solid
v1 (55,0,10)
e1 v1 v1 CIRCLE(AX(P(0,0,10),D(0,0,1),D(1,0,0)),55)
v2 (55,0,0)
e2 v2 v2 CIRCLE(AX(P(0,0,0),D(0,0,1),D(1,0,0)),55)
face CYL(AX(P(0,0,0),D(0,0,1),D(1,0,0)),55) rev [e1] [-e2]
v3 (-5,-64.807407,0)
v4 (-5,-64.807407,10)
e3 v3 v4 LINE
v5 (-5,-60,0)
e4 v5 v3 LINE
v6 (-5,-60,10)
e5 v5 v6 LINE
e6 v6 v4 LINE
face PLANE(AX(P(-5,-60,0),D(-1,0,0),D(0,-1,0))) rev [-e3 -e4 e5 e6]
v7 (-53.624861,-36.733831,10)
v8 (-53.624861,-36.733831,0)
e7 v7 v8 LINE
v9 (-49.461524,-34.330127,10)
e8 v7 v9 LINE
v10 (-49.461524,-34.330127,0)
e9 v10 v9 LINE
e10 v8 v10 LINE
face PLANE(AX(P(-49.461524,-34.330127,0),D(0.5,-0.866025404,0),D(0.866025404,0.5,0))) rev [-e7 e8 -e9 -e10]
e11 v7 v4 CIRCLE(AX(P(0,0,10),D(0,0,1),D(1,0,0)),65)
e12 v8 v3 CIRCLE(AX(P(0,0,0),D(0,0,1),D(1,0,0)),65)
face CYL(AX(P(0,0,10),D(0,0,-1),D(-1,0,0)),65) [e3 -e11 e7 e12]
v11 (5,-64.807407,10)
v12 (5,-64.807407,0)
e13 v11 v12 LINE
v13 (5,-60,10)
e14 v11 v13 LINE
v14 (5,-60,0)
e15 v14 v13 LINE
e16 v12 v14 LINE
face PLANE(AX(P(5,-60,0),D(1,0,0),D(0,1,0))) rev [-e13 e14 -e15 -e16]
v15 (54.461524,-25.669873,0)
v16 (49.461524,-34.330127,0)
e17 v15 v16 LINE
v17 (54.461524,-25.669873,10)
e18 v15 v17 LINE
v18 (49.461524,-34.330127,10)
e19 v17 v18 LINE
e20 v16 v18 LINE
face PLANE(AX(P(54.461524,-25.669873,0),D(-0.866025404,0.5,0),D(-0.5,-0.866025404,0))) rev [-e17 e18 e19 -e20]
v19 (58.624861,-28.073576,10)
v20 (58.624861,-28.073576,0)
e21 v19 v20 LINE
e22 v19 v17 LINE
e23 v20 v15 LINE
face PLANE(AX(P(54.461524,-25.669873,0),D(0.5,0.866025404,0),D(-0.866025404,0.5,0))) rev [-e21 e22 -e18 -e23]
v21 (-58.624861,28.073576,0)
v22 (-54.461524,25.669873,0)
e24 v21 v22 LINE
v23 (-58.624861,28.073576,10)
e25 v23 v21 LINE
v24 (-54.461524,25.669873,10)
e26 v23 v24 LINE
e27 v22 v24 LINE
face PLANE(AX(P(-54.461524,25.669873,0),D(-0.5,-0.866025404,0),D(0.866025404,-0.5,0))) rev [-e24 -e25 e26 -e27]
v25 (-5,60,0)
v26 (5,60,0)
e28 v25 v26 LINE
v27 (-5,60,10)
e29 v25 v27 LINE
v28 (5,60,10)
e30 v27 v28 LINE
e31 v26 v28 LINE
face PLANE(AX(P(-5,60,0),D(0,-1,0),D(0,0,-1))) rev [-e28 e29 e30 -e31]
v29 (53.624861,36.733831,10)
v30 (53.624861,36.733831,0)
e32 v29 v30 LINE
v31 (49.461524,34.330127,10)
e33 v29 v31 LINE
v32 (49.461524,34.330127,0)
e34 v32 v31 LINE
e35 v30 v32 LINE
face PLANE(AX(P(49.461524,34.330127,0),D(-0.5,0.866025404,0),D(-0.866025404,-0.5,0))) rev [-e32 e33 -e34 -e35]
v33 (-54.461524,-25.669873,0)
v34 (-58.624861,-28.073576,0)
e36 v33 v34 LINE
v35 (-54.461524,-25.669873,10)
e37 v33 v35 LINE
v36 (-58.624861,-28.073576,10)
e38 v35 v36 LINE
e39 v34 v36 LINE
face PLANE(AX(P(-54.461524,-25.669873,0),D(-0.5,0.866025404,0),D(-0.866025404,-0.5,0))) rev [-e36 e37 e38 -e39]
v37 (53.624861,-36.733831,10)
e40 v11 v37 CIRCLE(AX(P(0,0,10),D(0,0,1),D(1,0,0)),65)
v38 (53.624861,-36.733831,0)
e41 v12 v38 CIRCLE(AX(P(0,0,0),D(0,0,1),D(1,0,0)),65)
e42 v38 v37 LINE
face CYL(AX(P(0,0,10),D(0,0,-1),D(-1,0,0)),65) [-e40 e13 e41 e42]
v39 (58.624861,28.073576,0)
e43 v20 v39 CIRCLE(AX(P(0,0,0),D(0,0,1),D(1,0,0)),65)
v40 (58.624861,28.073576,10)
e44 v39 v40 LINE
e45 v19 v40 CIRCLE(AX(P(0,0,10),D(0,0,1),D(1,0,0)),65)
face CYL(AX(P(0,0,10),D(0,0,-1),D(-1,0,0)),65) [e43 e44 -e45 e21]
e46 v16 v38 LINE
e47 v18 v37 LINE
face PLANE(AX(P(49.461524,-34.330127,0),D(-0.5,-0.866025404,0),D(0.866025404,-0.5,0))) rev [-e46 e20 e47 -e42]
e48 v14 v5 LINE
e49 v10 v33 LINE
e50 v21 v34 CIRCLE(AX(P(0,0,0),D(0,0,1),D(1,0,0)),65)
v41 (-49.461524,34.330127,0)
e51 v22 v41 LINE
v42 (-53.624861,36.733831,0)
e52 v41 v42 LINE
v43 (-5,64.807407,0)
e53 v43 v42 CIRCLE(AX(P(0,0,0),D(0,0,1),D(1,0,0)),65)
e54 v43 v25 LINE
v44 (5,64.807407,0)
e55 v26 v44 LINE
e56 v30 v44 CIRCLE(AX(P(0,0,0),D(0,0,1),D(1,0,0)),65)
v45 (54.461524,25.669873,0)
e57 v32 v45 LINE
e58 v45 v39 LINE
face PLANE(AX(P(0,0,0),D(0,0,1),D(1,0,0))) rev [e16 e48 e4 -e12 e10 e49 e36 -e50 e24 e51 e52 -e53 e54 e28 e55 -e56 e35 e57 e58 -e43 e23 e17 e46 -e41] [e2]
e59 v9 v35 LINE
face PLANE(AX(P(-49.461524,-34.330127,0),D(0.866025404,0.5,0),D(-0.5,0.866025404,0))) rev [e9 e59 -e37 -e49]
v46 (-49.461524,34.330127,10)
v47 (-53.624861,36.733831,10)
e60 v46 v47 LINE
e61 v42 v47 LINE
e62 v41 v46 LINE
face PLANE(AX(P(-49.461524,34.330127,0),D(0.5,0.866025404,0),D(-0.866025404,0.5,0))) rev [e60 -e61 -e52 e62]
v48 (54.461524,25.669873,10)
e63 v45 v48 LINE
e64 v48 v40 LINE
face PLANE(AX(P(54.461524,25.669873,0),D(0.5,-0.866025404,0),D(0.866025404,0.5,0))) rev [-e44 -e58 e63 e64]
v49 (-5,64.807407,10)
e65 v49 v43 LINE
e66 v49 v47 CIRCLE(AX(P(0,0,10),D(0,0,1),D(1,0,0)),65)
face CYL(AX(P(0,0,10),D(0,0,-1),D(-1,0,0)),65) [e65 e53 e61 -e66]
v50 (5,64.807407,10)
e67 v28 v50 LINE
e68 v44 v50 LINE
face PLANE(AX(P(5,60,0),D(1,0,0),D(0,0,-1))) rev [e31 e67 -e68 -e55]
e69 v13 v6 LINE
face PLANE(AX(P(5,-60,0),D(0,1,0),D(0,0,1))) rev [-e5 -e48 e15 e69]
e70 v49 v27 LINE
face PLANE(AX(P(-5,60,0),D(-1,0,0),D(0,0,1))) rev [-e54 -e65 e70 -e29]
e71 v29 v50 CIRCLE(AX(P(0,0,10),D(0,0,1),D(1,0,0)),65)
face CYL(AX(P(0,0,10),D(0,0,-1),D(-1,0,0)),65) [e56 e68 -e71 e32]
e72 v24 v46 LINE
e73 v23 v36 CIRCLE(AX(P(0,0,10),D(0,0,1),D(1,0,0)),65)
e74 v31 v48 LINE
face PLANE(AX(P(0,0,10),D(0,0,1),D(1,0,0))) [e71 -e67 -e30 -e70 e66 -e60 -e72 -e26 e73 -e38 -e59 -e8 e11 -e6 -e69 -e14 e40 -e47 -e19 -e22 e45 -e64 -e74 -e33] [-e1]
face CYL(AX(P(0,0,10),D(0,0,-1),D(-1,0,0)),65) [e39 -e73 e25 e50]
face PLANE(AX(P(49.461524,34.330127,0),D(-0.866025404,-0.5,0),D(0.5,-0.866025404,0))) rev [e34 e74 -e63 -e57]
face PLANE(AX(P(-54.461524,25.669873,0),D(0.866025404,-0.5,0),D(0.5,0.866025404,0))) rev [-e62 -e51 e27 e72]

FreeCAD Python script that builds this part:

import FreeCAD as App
import Part
import Sketcher
from FreeCAD import Vector
Q = App.Units.Quantity

doc = App.newDocument("Part")
params = doc.addObject("Spreadsheet::Sheet", "Params")
for row, (alias, value) in enumerate([
    ("sketch1_diameter", "130 mm"),
    ("pad1_length", "10 mm"),
    ("sketch2_diameter", "110 mm"),
    ("sketch3_width", "10 mm"),
    ("sketch3_height", "5 mm"),
    ("sketch3_length", "5 mm"),
    ("sketch3_length2", "10 mm"),
], start=1):
    params.set(f"A{row}", alias)
    params.set(f"B{row}", "=" + value)
    params.setAlias(f"B{row}", alias)

body = doc.addObject("PartDesign::Body", "Body")

# Sketch on XY plane
sketch1 = doc.addObject("Sketcher::SketchObject", "Sketch")
body.addObject(sketch1)
sketch1.AttachmentSupport = (doc.XY_Plane, [""])
sketch1.MapMode = "FlatFace"
sketch1.addGeometry(Part.Circle(Vector(0, 0, 0), Vector(0, 0, 1), 65), False)
sketch1.addConstraint(Sketcher.Constraint("Coincident", 0, 3, -1, 1))
sketch1.addConstraint(Sketcher.Constraint("Diameter", 0, 130.0))
sketch1.setExpression("Constraints[1]", "Params.sketch1_diameter")
pad1 = doc.addObject("PartDesign::Pad", "Pad")
body.addObject(pad1)
pad1.Profile = sketch1
pad1.setExpression("Length", "Params.pad1_length")

# Sketch on XY plane
sketch2 = doc.addObject("Sketcher::SketchObject", "Sketch001")
body.addObject(sketch2)
sketch2.AttachmentSupport = (doc.XY_Plane, [""])
sketch2.MapMode = "FlatFace"
sketch2.AttachmentOffset = App.Placement(Vector(0, 0, 10), App.Rotation())
sketch2.addGeometry(Part.Circle(Vector(0, 0, 0), Vector(0, 0, 1), 55), False)
sketch2.addConstraint(Sketcher.Constraint("Coincident", 0, 3, -1, 1))
sketch2.addConstraint(Sketcher.Constraint("Diameter", 0, 110.0))
sketch2.setExpression("Constraints[1]", "Params.sketch2_diameter")
pocket1 = doc.addObject("PartDesign::Pocket", "Pocket")
body.addObject(pocket1)
pocket1.Profile = sketch2
pocket1.Type = "ThroughAll"

# Sketch on XY plane
sketch3 = doc.addObject("Sketcher::SketchObject", "Sketch002")
body.addObject(sketch3)
sketch3.AttachmentSupport = (doc.XY_Plane, [""])
sketch3.MapMode = "FlatFace"
sketch3.AttachmentOffset = App.Placement(Vector(0, 0, 10), App.Rotation())
sketch3.addGeometry(Part.LineSegment(Vector(53.791651, 36.830127, 0), Vector(49.461524, 34.330127, 0)), False)
sketch3.addGeometry(Part.LineSegment(Vector(49.461524, 34.330127, 0), Vector(54.461524, 25.669873, 0)), False)
sketch3.addGeometry(Part.LineSegment(Vector(54.461524, 25.669873, 0), Vector(58.791651, 28.169873, 0)), False)
sketch3.addGeometry(Part.LineSegment(Vector(58.791651, 28.169873, 0), Vector(53.791651, 36.830127, 0)), False)
sketch3.addGeometry(Part.LineSegment(Vector(-5, 65, 0), Vector(-5, 60, 0)), False)
sketch3.addGeometry(Part.LineSegment(Vector(-5, 60, 0), Vector(5, 60, 0)), False)
sketch3.addGeometry(Part.LineSegment(Vector(5, 60, 0), Vector(5, 65, 0)), False)
sketch3.addGeometry(Part.LineSegment(Vector(5, 65, 0), Vector(-5, 65, 0)), False)
sketch3.addGeometry(Part.LineSegment(Vector(58.791651, -28.169873, 0), Vector(54.461524, -25.669873, 0)), False)
sketch3.addGeometry(Part.LineSegment(Vector(54.461524, -25.669873, 0), Vector(49.461524, -34.330127, 0)), False)
sketch3.addGeometry(Part.LineSegment(Vector(49.461524, -34.330127, 0), Vector(53.791651, -36.830127, 0)), False)
sketch3.addGeometry(Part.LineSegment(Vector(53.791651, -36.830127, 0), Vector(58.791651, -28.169873, 0)), False)
sketch3.addGeometry(Part.LineSegment(Vector(-5, -60, 0), Vector(-5, -65, 0)), False)
sketch3.addGeometry(Part.LineSegment(Vector(-5, -65, 0), Vector(5, -65, 0)), False)
sketch3.addGeometry(Part.LineSegment(Vector(5, -65, 0), Vector(5, -60, 0)), False)
sketch3.addGeometry(Part.LineSegment(Vector(5, -60, 0), Vector(-5, -60, 0)), False)
sketch3.addGeometry(Part.LineSegment(Vector(-53.791651, -36.830127, 0), Vector(-49.461524, -34.330127, 0)), False)
sketch3.addGeometry(Part.LineSegment(Vector(-49.461524, -34.330127, 0), Vector(-54.461524, -25.669873, 0)), False)
sketch3.addGeometry(Part.LineSegment(Vector(-54.461524, -25.669873, 0), Vector(-58.791651, -28.169873, 0)), False)
sketch3.addGeometry(Part.LineSegment(Vector(-58.791651, -28.169873, 0), Vector(-53.791651, -36.830127, 0)), False)
sketch3.addGeometry(Part.LineSegment(Vector(-58.791651, 28.169873, 0), Vector(-54.461524, 25.669873, 0)), False)
sketch3.addGeometry(Part.LineSegment(Vector(-54.461524, 25.669873, 0), Vector(-49.461524, 34.330127, 0)), False)
sketch3.addGeometry(Part.LineSegment(Vector(-49.461524, 34.330127, 0), Vector(-53.791651, 36.830127, 0)), False)
sketch3.addGeometry(Part.LineSegment(Vector(-53.791651, 36.830127, 0), Vector(-58.791651, 28.169873, 0)), False)
sketch3.addConstraint(Sketcher.Constraint("Coincident", 0, 2, 1, 1))
sketch3.addConstraint(Sketcher.Constraint("Coincident", 1, 2, 2, 1))
sketch3.addConstraint(Sketcher.Constraint("Coincident", 2, 2, 3, 1))
sketch3.addConstraint(Sketcher.Constraint("Coincident", 3, 2, 0, 1))
sketch3.addConstraint(Sketcher.Constraint("Coincident", 4, 2, 5, 1))
sketch3.addConstraint(Sketcher.Constraint("Coincident", 5, 2, 6, 1))
sketch3.addConstraint(Sketcher.Constraint("Coincident", 6, 2, 7, 1))
sketch3.addConstraint(Sketcher.Constraint("Coincident", 7, 2, 4, 1))
sketch3.addConstraint(Sketcher.Constraint("Coincident", 8, 2, 9, 1))
sketch3.addConstraint(Sketcher.Constraint("Coincident", 9, 2, 10, 1))
sketch3.addConstraint(Sketcher.Constraint("Coincident", 10, 2, 11, 1))
sketch3.addConstraint(Sketcher.Constraint("Coincident", 11, 2, 8, 1))
sketch3.addConstraint(Sketcher.Constraint("Coincident", 12, 2, 13, 1))
sketch3.addConstraint(Sketcher.Constraint("Coincident", 13, 2, 14, 1))
sketch3.addConstraint(Sketcher.Constraint("Coincident", 14, 2, 15, 1))
sketch3.addConstraint(Sketcher.Constraint("Coincident", 15, 2, 12, 1))
sketch3.addConstraint(Sketcher.Constraint("Coincident", 16, 2, 17, 1))
sketch3.addConstraint(Sketcher.Constraint("Coincident", 17, 2, 18, 1))
sketch3.addConstraint(Sketcher.Constraint("Coincident", 18, 2, 19, 1))
sketch3.addConstraint(Sketcher.Constraint("Coincident", 19, 2, 16, 1))
sketch3.addConstraint(Sketcher.Constraint("Coincident", 20, 2, 21, 1))
sketch3.addConstraint(Sketcher.Constraint("Coincident", 21, 2, 22, 1))
sketch3.addConstraint(Sketcher.Constraint("Coincident", 22, 2, 23, 1))
sketch3.addConstraint(Sketcher.Constraint("Coincident", 23, 2, 20, 1))
sketch3.addConstraint(Sketcher.Constraint("Vertical", 4))
sketch3.addConstraint(Sketcher.Constraint("Horizontal", 5))
sketch3.addConstraint(Sketcher.Constraint("Vertical", 6))
sketch3.addConstraint(Sketcher.Constraint("Horizontal", 7))
sketch3.addConstraint(Sketcher.Constraint("Vertical", 12))
sketch3.addConstraint(Sketcher.Constraint("Horizontal", 13))
sketch3.addConstraint(Sketcher.Constraint("Vertical", 14))
sketch3.addConstraint(Sketcher.Constraint("Horizontal", 15))
sketch3.addConstraint(Sketcher.Constraint("Symmetric", 6, 2, 12, 2, -1, 1))
sketch3.addConstraint(Sketcher.Constraint("Symmetric", 4, 2, 14, 2, -1, 1))
sketch3.addConstraint(Sketcher.Constraint("Symmetric", 0, 2, 16, 2, -1, 1))
sketch3.addConstraint(Sketcher.Constraint("Symmetric", 1, 2, 17, 2, -1, 1))
sketch3.addConstraint(Sketcher.Constraint("Symmetric", 2, 2, 18, 2, -1, 1))
sketch3.addConstraint(Sketcher.Constraint("Symmetric", 3, 2, 19, 2, -1, 1))
sketch3.addConstraint(Sketcher.Constraint("Symmetric", 8, 2, 20, 2, -1, 1))
sketch3.addConstraint(Sketcher.Constraint("Symmetric", 9, 2, 21, 2, -1, 1))
sketch3.addConstraint(Sketcher.Constraint("Symmetric", 10, 2, 22, 2, -1, 1))
sketch3.addConstraint(Sketcher.Constraint("Symmetric", 11, 2, 23, 2, -1, 1))
sketch3.addConstraint(Sketcher.Constraint("Symmetric", 9, 2, 16, 2, -2))
sketch3.addConstraint(Sketcher.Constraint("Symmetric", 8, 2, 17, 2, -2))
sketch3.addConstraint(Sketcher.Constraint("Symmetric", 11, 2, 18, 2, -2))
sketch3.addConstraint(Sketcher.Constraint("Symmetric", 10, 2, 19, 2, -2))
sketch3.addConstraint(Sketcher.Constraint("Perpendicular", 0, 1))
sketch3.addConstraint(Sketcher.Constraint("Perpendicular", 1, 2))
sketch3.addConstraint(Sketcher.Constraint("Perpendicular", 2, 3))
sketch3.addConstraint(Sketcher.Constraint("Vertical", 7, 2, 12, 2))
sketch3.addConstraint(Sketcher.Constraint("DistanceX", 5, 1, 5, 2, 10.0))
sketch3.addConstraint(Sketcher.Constraint("DistanceY", 4, 2, 4, 1, 5.0))
sketch3.addConstraint(Sketcher.Constraint("Angle", 0, Q("-150 deg")))
sketch3.addConstraint(Sketcher.Constraint("Distance", 0, 5.0))
sketch3.addConstraint(Sketcher.Constraint("Distance", 1, 10.0))
sketch3.addConstraint(Sketcher.Constraint("DistanceY", -1, 1, 4, 2, 60.0))
sketch3.addConstraint(Sketcher.Constraint("DistanceY", 8, 2, 0, 2, 60.0))
sketch3.addConstraint(Sketcher.Constraint("DistanceX", -1, 1, 2, 2, 58.791651))
sketch3.setExpression("Constraints[50]", "Params.sketch3_width")
sketch3.setExpression("Constraints[51]", "Params.sketch3_height")
sketch3.setExpression("Constraints[53]", "Params.sketch3_length")
sketch3.setExpression("Constraints[54]", "Params.sketch3_length2")
pocket2 = doc.addObject("PartDesign::Pocket", "Pocket001")
body.addObject(pocket2)
pocket2.Profile = sketch3
pocket2.Type = "ThroughAll"

doc.recompute()
